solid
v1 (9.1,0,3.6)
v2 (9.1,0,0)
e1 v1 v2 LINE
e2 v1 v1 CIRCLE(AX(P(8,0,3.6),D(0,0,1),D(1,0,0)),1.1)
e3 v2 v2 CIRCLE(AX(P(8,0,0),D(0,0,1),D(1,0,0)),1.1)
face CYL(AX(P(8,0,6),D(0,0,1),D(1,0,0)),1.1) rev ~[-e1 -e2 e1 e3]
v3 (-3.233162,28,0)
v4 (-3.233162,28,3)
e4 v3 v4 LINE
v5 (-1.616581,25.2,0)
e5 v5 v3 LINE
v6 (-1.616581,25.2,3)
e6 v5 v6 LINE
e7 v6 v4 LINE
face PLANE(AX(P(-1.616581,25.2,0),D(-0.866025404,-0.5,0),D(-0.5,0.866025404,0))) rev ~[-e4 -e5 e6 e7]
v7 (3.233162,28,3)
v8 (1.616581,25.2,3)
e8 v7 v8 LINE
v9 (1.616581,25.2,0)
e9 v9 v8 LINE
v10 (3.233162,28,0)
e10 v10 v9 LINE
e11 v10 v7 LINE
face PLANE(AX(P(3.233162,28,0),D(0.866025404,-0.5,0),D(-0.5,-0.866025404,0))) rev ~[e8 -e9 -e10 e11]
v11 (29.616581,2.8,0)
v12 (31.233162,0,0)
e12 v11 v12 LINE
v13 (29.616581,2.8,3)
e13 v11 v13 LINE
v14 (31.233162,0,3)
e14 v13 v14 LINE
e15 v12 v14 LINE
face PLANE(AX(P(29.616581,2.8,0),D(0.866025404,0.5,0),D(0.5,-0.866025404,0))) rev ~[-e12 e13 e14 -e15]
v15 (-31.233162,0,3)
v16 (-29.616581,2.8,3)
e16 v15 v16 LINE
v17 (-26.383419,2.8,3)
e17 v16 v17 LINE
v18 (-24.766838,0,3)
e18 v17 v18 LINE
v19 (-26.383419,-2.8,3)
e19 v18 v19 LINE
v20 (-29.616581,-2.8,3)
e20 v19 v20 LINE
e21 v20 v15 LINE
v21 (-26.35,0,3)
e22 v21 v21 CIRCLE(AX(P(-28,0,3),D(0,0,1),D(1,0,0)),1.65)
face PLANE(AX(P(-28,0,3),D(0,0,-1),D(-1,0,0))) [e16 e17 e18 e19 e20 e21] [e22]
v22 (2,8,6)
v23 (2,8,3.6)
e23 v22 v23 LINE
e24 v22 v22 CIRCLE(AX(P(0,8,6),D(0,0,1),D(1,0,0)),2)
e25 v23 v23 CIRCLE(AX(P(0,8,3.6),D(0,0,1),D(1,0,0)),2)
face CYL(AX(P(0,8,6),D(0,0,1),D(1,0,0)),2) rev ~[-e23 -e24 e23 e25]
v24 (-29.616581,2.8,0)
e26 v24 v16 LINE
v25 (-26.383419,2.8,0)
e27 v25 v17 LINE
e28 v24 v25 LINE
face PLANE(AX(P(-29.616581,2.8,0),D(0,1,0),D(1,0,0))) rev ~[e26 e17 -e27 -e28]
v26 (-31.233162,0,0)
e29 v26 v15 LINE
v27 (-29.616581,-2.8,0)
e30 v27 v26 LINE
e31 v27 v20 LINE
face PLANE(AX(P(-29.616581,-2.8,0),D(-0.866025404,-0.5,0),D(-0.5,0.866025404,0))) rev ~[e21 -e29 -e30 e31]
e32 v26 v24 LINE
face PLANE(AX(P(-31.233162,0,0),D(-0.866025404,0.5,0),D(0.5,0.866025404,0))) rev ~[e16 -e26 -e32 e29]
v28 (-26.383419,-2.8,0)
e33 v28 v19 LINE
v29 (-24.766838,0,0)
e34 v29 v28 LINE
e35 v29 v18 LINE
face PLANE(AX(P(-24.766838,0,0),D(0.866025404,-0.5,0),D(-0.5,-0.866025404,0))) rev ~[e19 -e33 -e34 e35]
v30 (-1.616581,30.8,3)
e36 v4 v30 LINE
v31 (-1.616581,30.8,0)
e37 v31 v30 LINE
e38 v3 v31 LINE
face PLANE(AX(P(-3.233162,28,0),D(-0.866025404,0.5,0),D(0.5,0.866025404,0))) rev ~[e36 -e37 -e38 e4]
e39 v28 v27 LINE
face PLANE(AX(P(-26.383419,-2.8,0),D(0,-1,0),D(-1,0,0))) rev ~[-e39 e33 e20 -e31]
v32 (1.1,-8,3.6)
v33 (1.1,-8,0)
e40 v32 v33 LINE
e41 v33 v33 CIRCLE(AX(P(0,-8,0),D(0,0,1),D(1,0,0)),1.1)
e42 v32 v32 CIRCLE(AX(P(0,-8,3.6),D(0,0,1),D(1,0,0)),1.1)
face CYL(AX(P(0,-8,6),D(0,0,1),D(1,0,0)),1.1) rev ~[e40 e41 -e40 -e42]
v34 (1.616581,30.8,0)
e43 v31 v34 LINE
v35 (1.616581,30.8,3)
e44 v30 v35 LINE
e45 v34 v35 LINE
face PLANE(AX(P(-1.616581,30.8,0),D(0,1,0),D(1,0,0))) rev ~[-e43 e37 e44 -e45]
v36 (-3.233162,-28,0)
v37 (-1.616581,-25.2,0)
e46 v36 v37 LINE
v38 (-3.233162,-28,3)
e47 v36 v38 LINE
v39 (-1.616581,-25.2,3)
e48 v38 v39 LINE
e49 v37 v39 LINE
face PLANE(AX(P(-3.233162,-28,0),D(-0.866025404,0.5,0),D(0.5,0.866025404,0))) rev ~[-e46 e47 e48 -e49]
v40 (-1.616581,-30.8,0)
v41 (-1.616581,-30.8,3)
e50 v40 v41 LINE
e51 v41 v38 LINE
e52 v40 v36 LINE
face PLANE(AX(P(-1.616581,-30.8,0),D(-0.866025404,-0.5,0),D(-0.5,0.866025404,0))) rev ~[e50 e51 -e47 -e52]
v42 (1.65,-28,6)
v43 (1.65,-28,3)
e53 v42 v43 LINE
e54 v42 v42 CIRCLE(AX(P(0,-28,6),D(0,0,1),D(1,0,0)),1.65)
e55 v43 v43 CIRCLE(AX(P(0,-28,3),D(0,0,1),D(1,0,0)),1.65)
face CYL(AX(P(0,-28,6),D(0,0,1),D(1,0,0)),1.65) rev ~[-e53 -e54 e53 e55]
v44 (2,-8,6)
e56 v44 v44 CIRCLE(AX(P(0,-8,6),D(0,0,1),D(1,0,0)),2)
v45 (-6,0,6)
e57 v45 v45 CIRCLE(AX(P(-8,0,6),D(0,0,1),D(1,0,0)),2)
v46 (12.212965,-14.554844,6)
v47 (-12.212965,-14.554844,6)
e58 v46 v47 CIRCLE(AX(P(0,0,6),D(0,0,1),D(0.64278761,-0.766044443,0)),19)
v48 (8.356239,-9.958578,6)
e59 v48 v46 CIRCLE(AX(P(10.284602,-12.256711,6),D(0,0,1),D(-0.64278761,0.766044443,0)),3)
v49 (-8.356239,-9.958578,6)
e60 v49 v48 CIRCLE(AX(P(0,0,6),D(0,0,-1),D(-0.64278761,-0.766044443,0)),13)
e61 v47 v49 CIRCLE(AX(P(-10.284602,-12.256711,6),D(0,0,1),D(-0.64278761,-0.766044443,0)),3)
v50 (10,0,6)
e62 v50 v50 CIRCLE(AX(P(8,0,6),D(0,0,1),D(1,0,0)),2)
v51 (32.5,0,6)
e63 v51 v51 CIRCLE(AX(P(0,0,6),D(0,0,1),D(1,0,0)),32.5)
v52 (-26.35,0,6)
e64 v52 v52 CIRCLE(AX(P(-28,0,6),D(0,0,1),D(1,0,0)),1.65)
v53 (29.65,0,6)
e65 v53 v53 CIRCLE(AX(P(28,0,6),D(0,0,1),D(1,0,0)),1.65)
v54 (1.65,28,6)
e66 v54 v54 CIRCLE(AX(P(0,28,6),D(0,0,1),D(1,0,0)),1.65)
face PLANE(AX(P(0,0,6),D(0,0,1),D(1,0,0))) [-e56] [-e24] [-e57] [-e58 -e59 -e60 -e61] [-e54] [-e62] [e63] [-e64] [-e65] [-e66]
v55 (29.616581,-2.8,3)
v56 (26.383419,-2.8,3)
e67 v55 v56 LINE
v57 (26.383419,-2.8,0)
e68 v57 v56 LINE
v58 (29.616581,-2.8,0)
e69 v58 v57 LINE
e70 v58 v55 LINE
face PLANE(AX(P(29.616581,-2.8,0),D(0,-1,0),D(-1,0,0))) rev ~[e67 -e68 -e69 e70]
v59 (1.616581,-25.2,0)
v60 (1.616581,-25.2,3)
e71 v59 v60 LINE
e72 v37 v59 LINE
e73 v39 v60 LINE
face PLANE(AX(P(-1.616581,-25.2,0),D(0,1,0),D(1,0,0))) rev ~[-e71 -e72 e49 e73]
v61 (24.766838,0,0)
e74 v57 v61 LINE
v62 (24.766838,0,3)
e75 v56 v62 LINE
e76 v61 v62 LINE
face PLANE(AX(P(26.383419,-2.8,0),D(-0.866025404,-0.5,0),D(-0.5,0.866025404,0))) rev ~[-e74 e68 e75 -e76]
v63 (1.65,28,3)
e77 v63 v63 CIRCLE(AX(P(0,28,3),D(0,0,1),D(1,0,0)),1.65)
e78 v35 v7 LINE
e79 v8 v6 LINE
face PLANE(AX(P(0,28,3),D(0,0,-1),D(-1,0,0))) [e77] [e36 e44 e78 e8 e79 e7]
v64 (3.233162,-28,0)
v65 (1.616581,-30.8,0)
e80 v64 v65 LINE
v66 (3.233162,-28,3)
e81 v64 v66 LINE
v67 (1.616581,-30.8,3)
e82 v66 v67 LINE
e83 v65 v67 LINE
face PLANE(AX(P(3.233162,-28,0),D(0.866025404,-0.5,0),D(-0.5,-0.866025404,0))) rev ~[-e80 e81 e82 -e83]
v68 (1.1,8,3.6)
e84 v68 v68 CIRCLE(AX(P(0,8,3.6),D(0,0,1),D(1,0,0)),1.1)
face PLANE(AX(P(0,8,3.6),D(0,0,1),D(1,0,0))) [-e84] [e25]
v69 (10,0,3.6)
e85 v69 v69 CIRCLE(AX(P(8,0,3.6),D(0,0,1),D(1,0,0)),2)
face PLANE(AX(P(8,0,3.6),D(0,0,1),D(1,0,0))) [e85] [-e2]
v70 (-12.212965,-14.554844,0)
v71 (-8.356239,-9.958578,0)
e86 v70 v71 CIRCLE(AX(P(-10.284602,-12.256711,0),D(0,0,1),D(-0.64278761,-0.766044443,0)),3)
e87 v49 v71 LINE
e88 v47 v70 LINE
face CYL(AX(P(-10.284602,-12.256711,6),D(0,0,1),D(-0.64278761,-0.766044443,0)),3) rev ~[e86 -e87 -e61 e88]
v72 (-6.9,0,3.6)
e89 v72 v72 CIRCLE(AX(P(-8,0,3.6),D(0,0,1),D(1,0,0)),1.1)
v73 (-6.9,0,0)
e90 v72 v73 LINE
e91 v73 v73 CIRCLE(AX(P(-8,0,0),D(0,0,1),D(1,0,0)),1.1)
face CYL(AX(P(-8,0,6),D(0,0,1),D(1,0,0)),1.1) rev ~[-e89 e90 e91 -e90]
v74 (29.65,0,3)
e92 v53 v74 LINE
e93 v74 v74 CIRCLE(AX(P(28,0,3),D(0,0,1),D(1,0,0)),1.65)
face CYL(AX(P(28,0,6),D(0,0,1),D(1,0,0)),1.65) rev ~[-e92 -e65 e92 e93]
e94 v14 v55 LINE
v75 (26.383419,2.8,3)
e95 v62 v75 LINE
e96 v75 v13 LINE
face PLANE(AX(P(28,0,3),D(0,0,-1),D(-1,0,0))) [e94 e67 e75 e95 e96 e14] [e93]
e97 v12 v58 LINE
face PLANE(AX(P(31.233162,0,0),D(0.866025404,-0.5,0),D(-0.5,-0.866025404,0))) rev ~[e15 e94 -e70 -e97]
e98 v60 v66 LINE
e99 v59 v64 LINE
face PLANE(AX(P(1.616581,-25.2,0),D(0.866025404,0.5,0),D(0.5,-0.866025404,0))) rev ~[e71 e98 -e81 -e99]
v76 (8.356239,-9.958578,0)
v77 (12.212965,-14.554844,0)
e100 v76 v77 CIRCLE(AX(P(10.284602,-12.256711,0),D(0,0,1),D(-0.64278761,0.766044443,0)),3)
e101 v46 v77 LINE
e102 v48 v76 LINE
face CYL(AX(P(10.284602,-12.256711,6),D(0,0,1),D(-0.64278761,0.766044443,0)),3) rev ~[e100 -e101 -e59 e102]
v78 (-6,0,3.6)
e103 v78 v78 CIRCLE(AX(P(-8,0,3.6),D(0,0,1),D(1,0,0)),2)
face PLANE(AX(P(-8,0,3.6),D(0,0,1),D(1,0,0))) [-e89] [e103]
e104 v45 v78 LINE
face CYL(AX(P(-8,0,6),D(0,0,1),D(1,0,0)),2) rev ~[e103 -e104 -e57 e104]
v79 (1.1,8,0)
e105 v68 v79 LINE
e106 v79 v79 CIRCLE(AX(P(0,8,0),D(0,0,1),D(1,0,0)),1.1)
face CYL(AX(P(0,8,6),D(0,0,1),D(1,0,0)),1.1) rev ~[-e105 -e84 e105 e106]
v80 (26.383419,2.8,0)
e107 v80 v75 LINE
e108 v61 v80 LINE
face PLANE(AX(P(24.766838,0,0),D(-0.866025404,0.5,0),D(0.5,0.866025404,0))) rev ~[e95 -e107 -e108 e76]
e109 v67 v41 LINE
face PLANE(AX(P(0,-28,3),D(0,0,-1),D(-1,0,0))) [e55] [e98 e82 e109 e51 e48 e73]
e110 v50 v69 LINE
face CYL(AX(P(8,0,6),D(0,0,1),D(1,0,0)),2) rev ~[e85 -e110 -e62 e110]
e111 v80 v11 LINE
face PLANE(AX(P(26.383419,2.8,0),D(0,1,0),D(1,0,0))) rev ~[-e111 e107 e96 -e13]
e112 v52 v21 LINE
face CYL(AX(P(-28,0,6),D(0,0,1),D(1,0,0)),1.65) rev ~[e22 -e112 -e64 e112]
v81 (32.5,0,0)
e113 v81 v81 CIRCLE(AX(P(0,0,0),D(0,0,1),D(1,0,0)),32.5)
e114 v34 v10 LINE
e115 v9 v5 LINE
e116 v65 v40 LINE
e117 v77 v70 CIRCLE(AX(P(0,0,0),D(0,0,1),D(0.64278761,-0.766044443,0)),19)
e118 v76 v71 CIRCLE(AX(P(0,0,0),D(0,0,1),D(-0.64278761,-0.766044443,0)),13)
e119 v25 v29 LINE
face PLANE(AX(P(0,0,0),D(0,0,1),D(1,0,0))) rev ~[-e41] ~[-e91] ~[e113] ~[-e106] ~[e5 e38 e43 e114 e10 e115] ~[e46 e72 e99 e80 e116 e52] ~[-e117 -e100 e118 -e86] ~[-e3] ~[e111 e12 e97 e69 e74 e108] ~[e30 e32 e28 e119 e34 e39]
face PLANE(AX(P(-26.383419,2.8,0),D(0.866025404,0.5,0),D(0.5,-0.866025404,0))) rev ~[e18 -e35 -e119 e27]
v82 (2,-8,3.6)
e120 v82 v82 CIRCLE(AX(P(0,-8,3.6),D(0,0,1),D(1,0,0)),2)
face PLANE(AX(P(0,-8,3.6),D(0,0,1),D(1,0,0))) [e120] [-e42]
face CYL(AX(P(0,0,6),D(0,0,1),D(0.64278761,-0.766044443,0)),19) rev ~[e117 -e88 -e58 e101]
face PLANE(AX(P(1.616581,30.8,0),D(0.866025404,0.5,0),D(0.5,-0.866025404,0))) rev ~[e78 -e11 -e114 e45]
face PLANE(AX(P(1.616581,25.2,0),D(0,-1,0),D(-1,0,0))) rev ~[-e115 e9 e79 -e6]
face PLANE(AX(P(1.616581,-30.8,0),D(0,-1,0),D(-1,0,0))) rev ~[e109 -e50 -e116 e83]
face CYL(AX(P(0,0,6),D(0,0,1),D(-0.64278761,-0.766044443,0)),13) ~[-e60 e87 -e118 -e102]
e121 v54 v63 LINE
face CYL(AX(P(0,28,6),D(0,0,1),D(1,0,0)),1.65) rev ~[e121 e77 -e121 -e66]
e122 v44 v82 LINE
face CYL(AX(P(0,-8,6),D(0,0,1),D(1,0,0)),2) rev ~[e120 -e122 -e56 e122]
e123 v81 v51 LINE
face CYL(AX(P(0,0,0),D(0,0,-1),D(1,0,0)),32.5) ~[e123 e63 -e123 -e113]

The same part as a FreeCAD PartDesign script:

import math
import FreeCAD as App
import Part
import Sketcher
from FreeCAD import Vector
Q = App.Units.Quantity


def add_polygon(sketch, points):
    """Adds a closed chain of lines whose ends are joined by coincident constraints."""
    first, n = sketch.GeometryCount, len(points)
    for a, b in zip(points, points[1:] + points[:1]):
        sketch.addGeometry(Part.LineSegment(App.Vector(*a, 0), App.Vector(*b, 0)), False)
    for i in range(n):
        sketch.addConstraint(Sketcher.Constraint("Coincident", first + i, 2, first + (i + 1) % n, 1))

doc = App.newDocument("Part")
params = doc.addObject("Spreadsheet::Sheet", "Params")
for row, (alias, value) in enumerate([
    ("sketch1_diameter", "65 mm"),
    ("pad1_length", "6 mm"),
    ("sketch2_diameter", "2.2 mm"),
    ("sketch3_diameter", "4 mm"),
    ("pocket2_length", "2.4 mm"),
    ("sketch4_diameter", "3.3 mm"),
    ("pocket4_length", "3 mm"),
    ("sketch6_radius", "19 mm"),
    ("sketch6_radius2", "3 mm"),
], start=1):
    params.set(f"A{row}", alias)
    params.set(f"B{row}", "=" + value)
    params.setAlias(f"B{row}", alias)

body = doc.addObject("PartDesign::Body", "Body")

# Sketch on XY plane
sketch1 = body.newObject("Sketcher::SketchObject", "Sketch")
sketch1.AttachmentSupport = (doc.getObject("XY_Plane"), [""])
sketch1.MapMode = "FlatFace"
sketch1.addGeometry(Part.Circle(Vector(0, 0, 0), Vector(0, 0, 1), 32.5), False)
sketch1.addConstraint([
    Sketcher.Constraint("Coincident", 0, 3, -1, 1),
    Sketcher.Constraint("Diameter", 0, Q("65 mm")),
])
sketch1.setExpression("Constraints[1]", "Params.sketch1_diameter")
pad1 = body.newObject("PartDesign::Pad", "Pad")
pad1.Profile = sketch1
pad1.setExpression("Length", "Params.pad1_length")

# Sketch on XY plane
sketch2 = body.newObject("Sketcher::SketchObject", "Sketch001")
sketch2.AttachmentSupport = (doc.getObject("XY_Plane"), [""])
sketch2.MapMode = "FlatFace"
sketch2.AttachmentOffset = App.Placement(Vector(0, 0, 6), App.Rotation())
sketch2.addGeometry([
    Part.Circle(Vector(8, 0, 0), Vector(0, 0, 1), 1.1),
    Part.Circle(Vector(-8, 0, 0), Vector(0, 0, 1), 1.1),
    Part.Circle(Vector(0, -8, 0), Vector(0, 0, 1), 1.1),
    Part.Circle(Vector(0, 8, 0), Vector(0, 0, 1), 1.1),
], False)
sketch2.addConstraint([
    Sketcher.Constraint("Equal", 0, 1),
    Sketcher.Constraint("Equal", 1, 2),
    Sketcher.Constraint("Equal", 2, 3),
    Sketcher.Constraint("Symmetric", 0, 3, 1, 3, -1, 1),
    Sketcher.Constraint("Symmetric", 2, 3, 3, 3, -1, 1),
    Sketcher.Constraint("PointOnObject", 0, 3, -1),
    Sketcher.Constraint("PointOnObject", 2, 3, -2),
    Sketcher.Constraint("Diameter", 0, Q("2.2 mm")),
    Sketcher.Constraint("DistanceX", -1, 1, 0, 3, Q("8 mm")),
    Sketcher.Constraint("DistanceY", 2, 3, -1, 1, Q("8 mm")),
])
sketch2.setExpression("Constraints[7]", "Params.sketch2_diameter")
pocket1 = body.newObject("PartDesign::Pocket", "Pocket")
pocket1.Profile = sketch2
pocket1.Type = "ThroughAll"

# Sketch on XY plane
sketch3 = body.newObject("Sketcher::SketchObject", "Sketch002")
sketch3.AttachmentSupport = (doc.getObject("XY_Plane"), [""])
sketch3.MapMode = "FlatFace"
sketch3.AttachmentOffset = App.Placement(Vector(0, 0, 6), App.Rotation())
sketch3.addGeometry([
    Part.Circle(Vector(8, 0, 0), Vector(0, 0, 1), 2),
    Part.Circle(Vector(-8, 0, 0), Vector(0, 0, 1), 2),
    Part.Circle(Vector(0, -8, 0), Vector(0, 0, 1), 2),
    Part.Circle(Vector(0, 8, 0), Vector(0, 0, 1), 2),
], False)
sketch3.addConstraint([
    Sketcher.Constraint("Equal", 0, 1),
    Sketcher.Constraint("Equal", 1, 2),
    Sketcher.Constraint("Equal", 2, 3),
    Sketcher.Constraint("Symmetric", 0, 3, 1, 3, -1, 1),
    Sketcher.Constraint("Symmetric", 2, 3, 3, 3, -1, 1),
    Sketcher.Constraint("PointOnObject", 0, 3, -1),
    Sketcher.Constraint("PointOnObject", 2, 3, -2),
    Sketcher.Constraint("Diameter", 0, Q("4 mm")),
    Sketcher.Constraint("DistanceX", -1, 1, 0, 3, Q("8 mm")),
    Sketcher.Constraint("DistanceY", 2, 3, -1, 1, Q("8 mm")),
])
sketch3.setExpression("Constraints[7]", "Params.sketch3_diameter")
pocket2 = body.newObject("PartDesign::Pocket", "Pocket001")
pocket2.Profile = sketch3
pocket2.setExpression("Length", "Params.pocket2_length")

# Sketch on XY plane
sketch4 = body.newObject("Sketcher::SketchObject", "Sketch003")
sketch4.AttachmentSupport = (doc.getObject("XY_Plane"), [""])
sketch4.MapMode = "FlatFace"
sketch4.AttachmentOffset = App.Placement(Vector(0, 0, 6), App.Rotation())
sketch4.addGeometry([
    Part.Circle(Vector(0, 28, 0), Vector(0, 0, 1), 1.65),
    Part.Circle(Vector(28, 0, 0), Vector(0, 0, 1), 1.65),
    Part.Circle(Vector(0, -28, 0), Vector(0, 0, 1), 1.65),
    Part.Circle(Vector(-28, 0, 0), Vector(0, 0, 1), 1.65),
], False)
sketch4.addConstraint([
    Sketcher.Constraint("Equal", 0, 1),
    Sketcher.Constraint("Equal", 1, 2),
    Sketcher.Constraint("Equal", 2, 3),
    Sketcher.Constraint("Symmetric", 0, 3, 2, 3, -1, 1),
    Sketcher.Constraint("Symmetric", 1, 3, 3, 3, -1, 1),
    Sketcher.Constraint("PointOnObject", 0, 3, -2),
    Sketcher.Constraint("PointOnObject", 1, 3, -1),
    Sketcher.Constraint("Diameter", 0, Q("3.3 mm")),
    Sketcher.Constraint("DistanceY", -1, 1, 0, 3, Q("28 mm")),
    Sketcher.Constraint("DistanceX", -1, 1, 1, 3, Q("28 mm")),
])
sketch4.setExpression("Constraints[7]", "Params.sketch4_diameter")
pocket3 = body.newObject("PartDesign::Pocket", "Pocket002")
pocket3.Profile = sketch4
pocket3.Type = "ThroughAll"

# Sketch on XY plane
sketch5 = body.newObject("Sketcher::SketchObject", "Sketch004")
sketch5.AttachmentSupport = (doc.getObject("XY_Plane"), [""])
sketch5.MapMode = "FlatFace"
add_polygon(sketch5, [(-1.616581, 30.8), (1.616581, 30.8), (3.233162, 28), (1.616581, 25.2), (-1.616581, 25.2), (-3.233162, 28)])  # lines 0-5
add_polygon(sketch5, [(-29.616581, 2.8), (-26.383419, 2.8), (-24.766838, 0), (-26.383419, -2.8), (-29.616581, -2.8), (-31.233162, 0)])  # lines 6-11
add_polygon(sketch5, [(-1.616581, -25.2), (1.616581, -25.2), (3.233162, -28), (1.616581, -30.8), (-1.616581, -30.8), (-3.233162, -28)])  # lines 12-17
add_polygon(sketch5, [(26.383419, 2.8), (29.616581, 2.8), (31.233162, 0), (29.616581, -2.8), (26.383419, -2.8), (24.766838, 0)])  # lines 18-23
sketch5.addConstraint([
    Sketcher.Constraint("Horizontal", 0),
    Sketcher.Constraint("Horizontal", 3),
    Sketcher.Constraint("Horizontal", 6),
    Sketcher.Constraint("Horizontal", 9),
    Sketcher.Constraint("Horizontal", 12),
    Sketcher.Constraint("Horizontal", 15),
    Sketcher.Constraint("Horizontal", 18),
    Sketcher.Constraint("Horizontal", 21),
    Sketcher.Constraint("Symmetric", 3, 2, 12, 2, -1, 1),
    Sketcher.Constraint("Symmetric", 4, 2, 13, 2, -1, 1),
    Sketcher.Constraint("Symmetric", 5, 2, 14, 2, -1, 1),
    Sketcher.Constraint("Symmetric", 1, 2, 16, 2, -1, 1),
    Sketcher.Constraint("Symmetric", 9, 2, 18, 2, -1, 1),
    Sketcher.Constraint("Symmetric", 10, 2, 19, 2, -1, 1),
    Sketcher.Constraint("Symmetric", 11, 2, 20, 2, -1, 1),
    Sketcher.Constraint("Symmetric", 7, 2, 22, 2, -1, 1),
    Sketcher.Constraint("Symmetric", 1, 2, 4, 2, -2),
    Sketcher.Constraint("Symmetric", 11, 2, 18, 2, -2),
    Sketcher.Constraint("PointOnObject", 7, 2, -1),
    Sketcher.Constraint("PointOnObject", 10, 2, -1),
    Sketcher.Constraint("Parallel", 1, 4),
    Sketcher.Constraint("Parallel", 2, 5),
    Sketcher.Constraint("Parallel", 4, 7),
    Sketcher.Constraint("Parallel", 5, 8),
    Sketcher.Constraint("Parallel", 7, 10),
    Sketcher.Constraint("Parallel", 8, 11),
    Sketcher.Constraint("Parallel", 13, 16),
    Sketcher.Constraint("Parallel", 14, 17),
    Sketcher.Constraint("Parallel", 19, 22),
    Sketcher.Constraint("Parallel", 20, 23),
    Sketcher.Constraint("Vertical", 0, 2, 2, 2),
    Sketcher.Constraint("Equal", 3, 6),
    Sketcher.Constraint("Equal", 5, 7),
    Sketcher.Constraint("Angle", 1, Q("-60 deg")),
    Sketcher.Constraint("DistanceY", -1, 1, 1, 2, Q("28 mm")),
    Sketcher.Constraint("DistanceX", 6, 2, 2, 2, Q("28 mm")),
    Sketcher.Constraint("DistanceY", -1, 1, 0, 2, Q("30.8 mm")),
    Sketcher.Constraint("DistanceX", 0, 1, 0, 2, Q("3.233162 mm")),
])
pocket4 = body.newObject("PartDesign::Pocket", "Pocket003")
pocket4.Profile = sketch5
pocket4.setExpression("Length", "Params.pocket4_length")
pocket4.Reversed = True

# Sketch on XY plane
sketch6 = body.newObject("Sketcher::SketchObject", "Sketch005")
sketch6.AttachmentSupport = (doc.getObject("XY_Plane"), [""])
sketch6.MapMode = "FlatFace"
sketch6.AttachmentOffset = App.Placement(Vector(0, 0, 6), App.Rotation())
sketch6.addGeometry([
    Part.ArcOfCircle(Part.Circle(Vector(0, 0, 0), Vector(0, 0, 1), 19), math.radians(-50), math.radians(230)),
    Part.ArcOfCircle(Part.Circle(Vector(-10.284602, -12.256711, 0), Vector(0, 0, 1), 3), math.radians(-130), math.radians(50)),
    Part.ArcOfCircle(Part.Circle(Vector(0, 0, 0), Vector(0, 0, 1), 13), math.radians(-50), math.radians(230)),
    Part.ArcOfCircle(Part.Circle(Vector(10.284602, -12.256711, 0), Vector(0, 0, 1), 3), math.radians(130), math.radians(310)),
], False)
sketch6.addConstraint([
    Sketcher.Constraint("Tangent", 0, 2, 1, 1),
    Sketcher.Constraint("Tangent", 1, 2, 2, 2),
    Sketcher.Constraint("Tangent", 2, 1, 3, 1),
    Sketcher.Constraint("Tangent", 3, 2, 0, 1),
    Sketcher.Constraint("Coincident", 0, 3, -1, 1),
    Sketcher.Constraint("Coincident", 2, 3, -1, 1),
    Sketcher.Constraint("Horizontal", 1, 3, 3, 3),
    Sketcher.Constraint("Radius", 0, Q("19 mm")),
    Sketcher.Constraint("Radius", 1, Q("3 mm")),
    Sketcher.Constraint("DistanceX", 1, 3, -1, 1, Q("10.284602 mm")),
])
sketch6.setExpression("Constraints[7]", "Params.sketch6_radius")
sketch6.setExpression("Constraints[8]", "Params.sketch6_radius2")
pocket5 = body.newObject("PartDesign::Pocket", "Pocket004")
pocket5.Profile = sketch6
pocket5.Type = "ThroughAll"

doc.recompute()
